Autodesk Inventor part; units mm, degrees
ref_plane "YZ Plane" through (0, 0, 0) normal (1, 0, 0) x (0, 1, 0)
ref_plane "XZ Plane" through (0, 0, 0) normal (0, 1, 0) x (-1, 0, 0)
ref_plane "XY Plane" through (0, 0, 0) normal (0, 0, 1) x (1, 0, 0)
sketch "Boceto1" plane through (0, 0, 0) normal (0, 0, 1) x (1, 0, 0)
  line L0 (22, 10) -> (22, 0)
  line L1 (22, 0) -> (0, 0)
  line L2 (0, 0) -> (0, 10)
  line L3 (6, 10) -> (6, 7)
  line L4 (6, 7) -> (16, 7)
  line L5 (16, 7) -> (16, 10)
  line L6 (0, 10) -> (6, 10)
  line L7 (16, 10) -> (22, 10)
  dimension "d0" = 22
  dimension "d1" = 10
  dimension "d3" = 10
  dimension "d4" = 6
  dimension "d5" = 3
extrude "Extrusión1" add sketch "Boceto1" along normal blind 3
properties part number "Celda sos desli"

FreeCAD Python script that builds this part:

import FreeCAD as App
import Part
import Sketcher

V = App.Vector
Q = App.Units.Quantity

doc = App.newDocument("Part")
params = doc.addObject("Spreadsheet::Sheet", "Params")
for row, (alias, value) in enumerate([
    ("sketch1_width", "6 mm"),
    ("sketch1_width2", "10 mm"),
    ("sketch1_height", "3 mm"),
    ("pad1_length", "3 mm"),
], start=1):
    params.set(f"A{row}", alias)
    params.set(f"B{row}", "=" + value)
    params.setAlias(f"B{row}", alias)

body = doc.addObject("PartDesign::Body", "Body")

# Sketch on XY plane
sketch1 = body.newObject("Sketcher::SketchObject", "Sketch")
sketch1.AttachmentSupport = (doc.getObject("XY_Plane"), [""])
sketch1.MapMode = "FlatFace"
sketch1.addGeometry([
    Part.LineSegment(V(22, 0, 0), V(22, 10, 0)),  # 0
    Part.LineSegment(V(22, 10, 0), V(16, 10, 0)),  # 1
    Part.LineSegment(V(16, 10, 0), V(16, 7, 0)),  # 2
    Part.LineSegment(V(16, 7, 0), V(6, 7, 0)),  # 3
    Part.LineSegment(V(6, 7, 0), V(6, 10, 0)),  # 4
    Part.LineSegment(V(6, 10, 0), V(0, 10, 0)),  # 5
    Part.LineSegment(V(0, 10, 0), V(0, 0, 0)),  # 6
    Part.LineSegment(V(0, 0, 0), V(22, 0, 0)),  # 7
], False)
sketch1.addConstraint([
    Sketcher.Constraint("Coincident", 0, 2, 1, 1),
    Sketcher.Constraint("Coincident", 1, 2, 2, 1),
    Sketcher.Constraint("Coincident", 2, 2, 3, 1),
    Sketcher.Constraint("Coincident", 3, 2, 4, 1),
    Sketcher.Constraint("Coincident", 4, 2, 5, 1),
    Sketcher.Constraint("Coincident", 5, 2, 6, 1),
    Sketcher.Constraint("Coincident", 6, 2, 7, 1),
    Sketcher.Constraint("Coincident", 7, 2, 0, 1),
    Sketcher.Constraint("Vertical", 0),
    Sketcher.Constraint("Horizontal", 1),
    Sketcher.Constraint("Vertical", 2),
    Sketcher.Constraint("Horizontal", 3),
    Sketcher.Constraint("Vertical", 4),
    Sketcher.Constraint("Horizontal", 5),
    Sketcher.Constraint("Vertical", 6),
    Sketcher.Constraint("Horizontal", 7),
    Sketcher.Constraint("Coincident", 6, 2, -1, 1),
    Sketcher.Constraint("Horizontal", 1, 2, 4, 2),
    Sketcher.Constraint("Equal", 1, 5),
    Sketcher.Constraint("Equal", 3, 0),
    Sketcher.Constraint("DistanceX", 1, 2, 1, 1, Q("6 mm")),
    Sketcher.Constraint("DistanceX", 3, 2, 3, 1, Q("10 mm")),
    Sketcher.Constraint("DistanceY", 2, 2, 2, 1, Q("3 mm")),
])
sketch1.setExpression("Constraints[20]", "Params.sketch1_width")
sketch1.setExpression("Constraints[21]", "Params.sketch1_width2")
sketch1.setExpression("Constraints[22]", "Params.sketch1_height")
pad1 = body.newObject("PartDesign::Pad", "Pad")
pad1.Profile = sketch1
pad1.setExpression("Length", "Params.pad1_length")

doc.recompute()
